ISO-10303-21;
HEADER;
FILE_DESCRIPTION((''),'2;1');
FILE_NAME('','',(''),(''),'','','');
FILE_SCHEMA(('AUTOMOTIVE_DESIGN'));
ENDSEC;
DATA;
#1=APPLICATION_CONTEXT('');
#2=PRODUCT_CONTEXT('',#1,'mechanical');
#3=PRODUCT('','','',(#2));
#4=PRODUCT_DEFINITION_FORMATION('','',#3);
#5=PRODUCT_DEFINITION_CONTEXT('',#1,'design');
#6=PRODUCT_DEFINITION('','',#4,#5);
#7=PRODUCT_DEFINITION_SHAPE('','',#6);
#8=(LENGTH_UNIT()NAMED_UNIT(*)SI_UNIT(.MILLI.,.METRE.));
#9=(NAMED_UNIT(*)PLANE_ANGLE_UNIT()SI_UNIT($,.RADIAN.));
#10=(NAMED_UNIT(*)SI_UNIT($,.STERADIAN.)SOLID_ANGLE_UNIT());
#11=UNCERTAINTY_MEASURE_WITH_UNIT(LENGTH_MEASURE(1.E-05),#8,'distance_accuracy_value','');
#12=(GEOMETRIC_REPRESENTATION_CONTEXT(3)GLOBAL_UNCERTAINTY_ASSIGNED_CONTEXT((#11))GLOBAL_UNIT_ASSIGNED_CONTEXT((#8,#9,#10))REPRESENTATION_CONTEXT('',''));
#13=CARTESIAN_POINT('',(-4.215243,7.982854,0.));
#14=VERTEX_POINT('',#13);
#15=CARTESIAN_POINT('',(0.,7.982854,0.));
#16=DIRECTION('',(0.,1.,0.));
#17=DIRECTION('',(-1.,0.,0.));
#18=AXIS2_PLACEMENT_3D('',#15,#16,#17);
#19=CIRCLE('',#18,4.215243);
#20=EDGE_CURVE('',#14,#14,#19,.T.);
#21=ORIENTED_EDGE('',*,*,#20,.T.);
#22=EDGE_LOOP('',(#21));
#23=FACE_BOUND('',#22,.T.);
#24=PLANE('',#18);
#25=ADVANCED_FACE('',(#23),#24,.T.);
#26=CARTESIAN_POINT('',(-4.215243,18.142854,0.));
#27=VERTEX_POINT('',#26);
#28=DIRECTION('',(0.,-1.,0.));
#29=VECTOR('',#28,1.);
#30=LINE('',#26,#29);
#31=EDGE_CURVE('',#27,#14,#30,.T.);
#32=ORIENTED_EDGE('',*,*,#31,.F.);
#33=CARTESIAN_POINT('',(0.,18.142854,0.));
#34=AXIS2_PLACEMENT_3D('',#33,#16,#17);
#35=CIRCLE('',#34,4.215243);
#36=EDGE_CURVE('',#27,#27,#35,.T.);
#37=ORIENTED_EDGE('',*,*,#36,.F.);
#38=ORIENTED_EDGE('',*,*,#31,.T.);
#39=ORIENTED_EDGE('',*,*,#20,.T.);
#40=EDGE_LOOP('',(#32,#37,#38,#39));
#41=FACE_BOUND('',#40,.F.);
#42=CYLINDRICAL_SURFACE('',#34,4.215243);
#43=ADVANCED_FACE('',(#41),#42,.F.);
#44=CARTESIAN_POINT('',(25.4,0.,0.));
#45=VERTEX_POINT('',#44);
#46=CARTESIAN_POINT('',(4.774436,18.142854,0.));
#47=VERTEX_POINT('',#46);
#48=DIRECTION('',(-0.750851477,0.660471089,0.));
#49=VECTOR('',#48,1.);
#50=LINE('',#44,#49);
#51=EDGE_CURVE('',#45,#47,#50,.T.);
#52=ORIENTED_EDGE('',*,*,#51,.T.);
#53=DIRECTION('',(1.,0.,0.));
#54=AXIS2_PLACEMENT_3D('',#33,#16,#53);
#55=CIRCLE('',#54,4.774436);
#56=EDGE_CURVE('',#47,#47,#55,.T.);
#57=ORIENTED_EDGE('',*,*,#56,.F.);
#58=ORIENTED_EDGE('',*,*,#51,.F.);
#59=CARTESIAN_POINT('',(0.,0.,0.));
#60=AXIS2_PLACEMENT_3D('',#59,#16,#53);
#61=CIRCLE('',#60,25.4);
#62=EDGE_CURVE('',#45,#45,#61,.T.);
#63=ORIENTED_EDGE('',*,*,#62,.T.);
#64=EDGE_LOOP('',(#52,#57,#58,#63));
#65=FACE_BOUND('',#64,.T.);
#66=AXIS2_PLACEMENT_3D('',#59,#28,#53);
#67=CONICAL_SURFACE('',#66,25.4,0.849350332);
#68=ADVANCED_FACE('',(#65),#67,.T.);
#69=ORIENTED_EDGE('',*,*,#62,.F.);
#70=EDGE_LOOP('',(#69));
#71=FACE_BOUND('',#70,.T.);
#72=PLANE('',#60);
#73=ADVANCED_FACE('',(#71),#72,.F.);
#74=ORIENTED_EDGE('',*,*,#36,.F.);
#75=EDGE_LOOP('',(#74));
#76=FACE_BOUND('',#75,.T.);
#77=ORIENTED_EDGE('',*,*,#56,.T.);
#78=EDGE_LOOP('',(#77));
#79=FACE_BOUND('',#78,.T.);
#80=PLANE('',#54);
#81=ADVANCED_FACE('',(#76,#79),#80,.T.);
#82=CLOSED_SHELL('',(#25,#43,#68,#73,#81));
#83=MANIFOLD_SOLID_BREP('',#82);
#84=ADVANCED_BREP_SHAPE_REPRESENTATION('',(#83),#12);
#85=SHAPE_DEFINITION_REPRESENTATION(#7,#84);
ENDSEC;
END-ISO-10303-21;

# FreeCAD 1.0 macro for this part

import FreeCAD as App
import Part
import Sketcher
from FreeCAD import Vector
Q = App.Units.Quantity

doc = App.newDocument("Part")
body = doc.addObject("PartDesign::Body", "Body")

sketch1 = body.newObject("Sketcher::SketchObject", "Sketch")
sketch1.AttachmentSupport = (doc.getObject("XY_Plane"), [""])
sketch1.MapMode = "FlatFace"
sketch1.addGeometry(Part.LineSegment(Vector(0, 18.1, 0), Vector(0, 0, 0)), False)
sketch1.addGeometry(Part.LineSegment(Vector(0, 0, 0), Vector(25.4, 0, 0)), False)
sketch1.addGeometry(Part.LineSegment(Vector(25.4, 0, 0), Vector(4.8, 18.1, 0)), False)
sketch1.addGeometry(Part.LineSegment(Vector(4.8, 18.1, 0), Vector(0, 18.1, 0)), False)
sketch1.addConstraint(Sketcher.Constraint("Coincident", 0, 2, 1, 1))
sketch1.addConstraint(Sketcher.Constraint("Coincident", 1, 2, 2, 1))
sketch1.addConstraint(Sketcher.Constraint("Coincident", 2, 2, 3, 1))
sketch1.addConstraint(Sketcher.Constraint("Coincident", 3, 2, 0, 1))
sketch1.addConstraint(Sketcher.Constraint("Vertical", 0))
sketch1.addConstraint(Sketcher.Constraint("Horizontal", 1))
sketch1.addConstraint(Sketcher.Constraint("Horizontal", 3))
sketch1.addConstraint(Sketcher.Constraint("Coincident", 0, 2, -1, 1))
sketch1.addConstraint(Sketcher.Constraint("DistanceX", 1, 1, 1, 2, Q("1 in")))
sketch1.addConstraint(Sketcher.Constraint("DistanceX", 3, 2, 3, 1, 4.774436))
sketch1.addConstraint(Sketcher.Constraint("DistanceY", 0, 2, 0, 1, 18.142854))
revolution = body.newObject("PartDesign::Revolution", "Revolution")
revolution.Profile = sketch1
revolution.ReferenceAxis = (sketch1, ["V_Axis"])
revolution.Angle = 360

sketch2 = body.newObject("Sketcher::SketchObject", "Sketch001")
sketch2.AttachmentSupport = (doc.getObject("XZ_Plane"), [""])
sketch2.MapMode = "FlatFace"
sketch2.AttachmentOffset = App.Placement(Vector(0, 0, -18.142854), App.Rotation())
sketch2.addGeometry(Part.Circle(Vector(0, 0, 0), Vector(0, 0, 1), 4.2), False)
sketch2.addConstraint(Sketcher.Constraint("Coincident", 0, 3, -1, 1))
sketch2.addConstraint(Sketcher.Constraint("Diameter", 0, 8.430486))
pocket1 = body.newObject("PartDesign::Pocket", "Pocket")
pocket1.Profile = sketch2
pocket1.Length = Q("0.4 in")
pocket1.Reversed = True

doc.recompute()
